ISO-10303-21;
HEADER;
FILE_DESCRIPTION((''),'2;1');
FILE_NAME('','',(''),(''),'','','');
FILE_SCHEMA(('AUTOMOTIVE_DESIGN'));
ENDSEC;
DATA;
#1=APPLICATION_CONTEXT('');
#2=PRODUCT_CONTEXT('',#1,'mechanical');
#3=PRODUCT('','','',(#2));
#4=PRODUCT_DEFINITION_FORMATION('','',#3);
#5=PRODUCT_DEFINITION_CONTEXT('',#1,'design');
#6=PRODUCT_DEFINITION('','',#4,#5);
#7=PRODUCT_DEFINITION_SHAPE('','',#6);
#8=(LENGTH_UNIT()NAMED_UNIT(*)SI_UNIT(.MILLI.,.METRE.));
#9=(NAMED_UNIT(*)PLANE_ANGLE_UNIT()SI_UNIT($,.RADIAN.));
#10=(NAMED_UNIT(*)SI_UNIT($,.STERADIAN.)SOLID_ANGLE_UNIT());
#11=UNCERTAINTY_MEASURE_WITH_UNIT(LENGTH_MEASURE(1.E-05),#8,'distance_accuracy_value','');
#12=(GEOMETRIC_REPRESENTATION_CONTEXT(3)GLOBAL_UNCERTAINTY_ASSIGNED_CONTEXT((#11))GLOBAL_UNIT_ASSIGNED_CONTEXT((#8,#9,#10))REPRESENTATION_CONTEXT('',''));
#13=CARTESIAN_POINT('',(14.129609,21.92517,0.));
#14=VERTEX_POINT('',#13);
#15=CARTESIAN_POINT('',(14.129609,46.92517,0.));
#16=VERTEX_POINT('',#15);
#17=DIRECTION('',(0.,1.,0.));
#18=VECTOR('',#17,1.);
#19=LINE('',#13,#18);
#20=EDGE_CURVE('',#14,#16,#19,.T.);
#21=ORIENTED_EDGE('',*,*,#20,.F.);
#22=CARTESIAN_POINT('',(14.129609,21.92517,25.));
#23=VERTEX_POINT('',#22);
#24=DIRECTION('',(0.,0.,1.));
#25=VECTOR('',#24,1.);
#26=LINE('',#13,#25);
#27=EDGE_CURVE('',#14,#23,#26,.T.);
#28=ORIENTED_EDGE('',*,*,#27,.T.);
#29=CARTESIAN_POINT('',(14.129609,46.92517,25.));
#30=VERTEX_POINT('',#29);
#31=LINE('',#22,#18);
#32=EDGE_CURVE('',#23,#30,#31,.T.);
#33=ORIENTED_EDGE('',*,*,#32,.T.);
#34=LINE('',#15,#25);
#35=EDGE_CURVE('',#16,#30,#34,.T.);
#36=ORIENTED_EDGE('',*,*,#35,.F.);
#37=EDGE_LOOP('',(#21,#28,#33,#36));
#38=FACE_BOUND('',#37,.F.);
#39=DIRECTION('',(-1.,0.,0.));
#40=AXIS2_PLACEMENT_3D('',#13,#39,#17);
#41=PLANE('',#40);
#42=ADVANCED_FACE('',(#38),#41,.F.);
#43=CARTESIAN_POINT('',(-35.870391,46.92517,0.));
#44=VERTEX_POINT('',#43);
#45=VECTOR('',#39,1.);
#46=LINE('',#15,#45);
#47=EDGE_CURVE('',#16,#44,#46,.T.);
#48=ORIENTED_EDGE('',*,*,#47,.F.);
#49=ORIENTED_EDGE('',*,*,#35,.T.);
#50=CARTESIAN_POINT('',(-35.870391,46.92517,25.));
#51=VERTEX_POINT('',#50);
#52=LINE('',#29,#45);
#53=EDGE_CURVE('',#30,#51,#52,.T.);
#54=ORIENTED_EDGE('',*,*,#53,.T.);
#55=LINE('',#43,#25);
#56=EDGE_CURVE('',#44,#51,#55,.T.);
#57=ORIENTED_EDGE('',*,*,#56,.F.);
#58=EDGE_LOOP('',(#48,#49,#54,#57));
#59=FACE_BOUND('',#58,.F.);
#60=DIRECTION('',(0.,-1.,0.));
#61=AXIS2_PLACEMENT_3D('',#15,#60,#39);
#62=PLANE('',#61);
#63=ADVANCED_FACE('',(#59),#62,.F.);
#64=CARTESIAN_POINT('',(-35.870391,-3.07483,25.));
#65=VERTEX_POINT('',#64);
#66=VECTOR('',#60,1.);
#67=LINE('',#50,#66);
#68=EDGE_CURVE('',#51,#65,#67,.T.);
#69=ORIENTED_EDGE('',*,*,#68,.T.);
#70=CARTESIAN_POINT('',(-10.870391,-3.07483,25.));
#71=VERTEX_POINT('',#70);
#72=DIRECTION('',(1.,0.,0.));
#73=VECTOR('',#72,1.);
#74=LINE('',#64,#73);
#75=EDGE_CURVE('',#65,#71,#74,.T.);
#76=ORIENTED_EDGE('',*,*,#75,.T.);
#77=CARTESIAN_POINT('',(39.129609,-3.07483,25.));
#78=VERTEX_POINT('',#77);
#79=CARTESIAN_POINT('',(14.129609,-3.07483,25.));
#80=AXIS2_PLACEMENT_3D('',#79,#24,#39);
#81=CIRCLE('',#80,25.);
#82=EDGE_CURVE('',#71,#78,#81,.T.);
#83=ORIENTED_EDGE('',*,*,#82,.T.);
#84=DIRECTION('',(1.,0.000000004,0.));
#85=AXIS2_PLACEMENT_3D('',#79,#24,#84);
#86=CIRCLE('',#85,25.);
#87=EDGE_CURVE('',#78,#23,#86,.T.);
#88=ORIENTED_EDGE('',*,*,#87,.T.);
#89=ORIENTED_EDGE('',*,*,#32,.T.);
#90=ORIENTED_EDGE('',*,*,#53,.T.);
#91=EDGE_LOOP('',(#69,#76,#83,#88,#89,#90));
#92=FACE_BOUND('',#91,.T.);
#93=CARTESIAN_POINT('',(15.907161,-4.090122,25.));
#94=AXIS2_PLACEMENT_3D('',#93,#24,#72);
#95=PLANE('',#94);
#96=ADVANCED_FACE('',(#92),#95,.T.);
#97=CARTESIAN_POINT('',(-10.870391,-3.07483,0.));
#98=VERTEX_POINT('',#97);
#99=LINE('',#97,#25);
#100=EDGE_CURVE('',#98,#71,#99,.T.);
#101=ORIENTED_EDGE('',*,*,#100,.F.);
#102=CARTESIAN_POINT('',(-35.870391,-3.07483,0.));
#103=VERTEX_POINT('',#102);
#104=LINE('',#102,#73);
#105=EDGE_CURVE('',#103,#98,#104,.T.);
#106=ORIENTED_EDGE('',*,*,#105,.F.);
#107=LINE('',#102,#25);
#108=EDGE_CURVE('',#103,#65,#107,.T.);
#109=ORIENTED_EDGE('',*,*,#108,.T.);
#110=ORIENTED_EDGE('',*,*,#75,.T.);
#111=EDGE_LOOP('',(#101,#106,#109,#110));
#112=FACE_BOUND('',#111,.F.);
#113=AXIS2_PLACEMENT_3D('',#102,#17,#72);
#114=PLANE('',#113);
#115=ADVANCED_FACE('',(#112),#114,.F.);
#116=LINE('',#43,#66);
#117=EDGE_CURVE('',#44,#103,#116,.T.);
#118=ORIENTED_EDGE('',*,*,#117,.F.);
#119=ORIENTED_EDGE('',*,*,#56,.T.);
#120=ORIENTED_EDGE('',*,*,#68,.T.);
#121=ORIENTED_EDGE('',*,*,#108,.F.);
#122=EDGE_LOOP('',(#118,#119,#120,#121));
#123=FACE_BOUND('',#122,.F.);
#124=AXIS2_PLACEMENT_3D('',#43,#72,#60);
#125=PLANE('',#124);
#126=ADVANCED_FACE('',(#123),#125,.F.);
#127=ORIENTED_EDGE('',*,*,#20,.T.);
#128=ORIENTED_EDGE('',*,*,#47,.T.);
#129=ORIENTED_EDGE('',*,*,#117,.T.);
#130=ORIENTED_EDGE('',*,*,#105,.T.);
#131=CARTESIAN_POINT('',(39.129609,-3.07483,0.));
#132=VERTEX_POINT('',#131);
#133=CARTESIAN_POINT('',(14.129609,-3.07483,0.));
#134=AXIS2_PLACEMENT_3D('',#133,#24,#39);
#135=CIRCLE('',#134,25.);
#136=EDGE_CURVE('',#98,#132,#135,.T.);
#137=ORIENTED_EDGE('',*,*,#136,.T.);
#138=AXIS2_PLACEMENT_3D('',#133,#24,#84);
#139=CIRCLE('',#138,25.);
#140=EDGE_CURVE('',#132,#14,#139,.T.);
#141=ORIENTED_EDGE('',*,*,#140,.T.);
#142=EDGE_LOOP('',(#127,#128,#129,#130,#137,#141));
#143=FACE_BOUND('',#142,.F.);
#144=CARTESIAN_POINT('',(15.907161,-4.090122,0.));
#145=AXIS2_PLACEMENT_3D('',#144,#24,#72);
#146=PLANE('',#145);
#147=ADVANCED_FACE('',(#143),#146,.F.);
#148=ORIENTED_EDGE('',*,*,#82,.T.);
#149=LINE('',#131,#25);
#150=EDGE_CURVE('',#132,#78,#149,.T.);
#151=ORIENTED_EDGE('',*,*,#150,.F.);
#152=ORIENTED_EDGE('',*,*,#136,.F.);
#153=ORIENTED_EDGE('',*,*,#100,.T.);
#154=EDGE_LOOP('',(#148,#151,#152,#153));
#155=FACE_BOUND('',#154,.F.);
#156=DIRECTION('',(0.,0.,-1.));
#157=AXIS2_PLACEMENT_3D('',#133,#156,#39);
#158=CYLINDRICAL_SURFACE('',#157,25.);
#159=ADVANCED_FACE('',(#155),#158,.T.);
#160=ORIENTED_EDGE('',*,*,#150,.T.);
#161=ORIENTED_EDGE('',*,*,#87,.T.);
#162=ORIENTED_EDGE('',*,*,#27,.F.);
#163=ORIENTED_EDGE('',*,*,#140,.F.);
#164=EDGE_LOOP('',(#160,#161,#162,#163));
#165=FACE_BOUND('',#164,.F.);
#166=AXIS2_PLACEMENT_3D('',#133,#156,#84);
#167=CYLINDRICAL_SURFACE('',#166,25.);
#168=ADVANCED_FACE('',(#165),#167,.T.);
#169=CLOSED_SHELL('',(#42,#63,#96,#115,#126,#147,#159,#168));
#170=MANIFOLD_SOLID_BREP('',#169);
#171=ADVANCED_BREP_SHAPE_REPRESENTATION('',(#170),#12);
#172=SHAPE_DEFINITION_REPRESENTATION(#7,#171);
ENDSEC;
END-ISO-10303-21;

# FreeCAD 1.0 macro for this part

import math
import FreeCAD as App
import Part
import Sketcher
Q = App.Units.Quantity

doc = App.newDocument("Part")
body = doc.addObject("PartDesign::Body", "Body")

# Sketch on XY plane
sketch1 = doc.addObject("Sketcher::SketchObject", "Sketch")
body.addObject(sketch1)
sketch1.AttachmentSupport = (doc.XY_Plane, [""])
sketch1.MapMode = "FlatFace"
sketch1.addGeometry(Part.ArcOfCircle(Part.Circle(App.Vector(14, -3, 0), App.Vector(0, 0, 1), 25), math.radians(0), math.radians(90)), False)
sketch1.addGeometry(Part.LineSegment(App.Vector(14, 22, 0), App.Vector(14, 47, 0)), False)
sketch1.addGeometry(Part.LineSegment(App.Vector(14, 47, 0), App.Vector(-36, 47, 0)), False)
sketch1.addGeometry(Part.LineSegment(App.Vector(-36, 47, 0), App.Vector(-36, -3, 0)), False)
sketch1.addGeometry(Part.LineSegment(App.Vector(-36, -3, 0), App.Vector(-11, -3, 0)), False)
sketch1.addGeometry(Part.ArcOfCircle(Part.Circle(App.Vector(14, -3, 0), App.Vector(0, 0, 1), 25), math.radians(180), math.radians(360)), False)
sketch1.addConstraint(Sketcher.Constraint("Coincident", 0, 2, 1, 1))
sketch1.addConstraint(Sketcher.Constraint("Coincident", 1, 2, 2, 1))
sketch1.addConstraint(Sketcher.Constraint("Coincident", 2, 2, 3, 1))
sketch1.addConstraint(Sketcher.Constraint("Coincident", 3, 2, 4, 1))
sketch1.addConstraint(Sketcher.Constraint("Coincident", 4, 2, 5, 1))
sketch1.addConstraint(Sketcher.Constraint("Tangent", 5, 2, 0, 1))
sketch1.addConstraint(Sketcher.Constraint("Vertical", 1))
sketch1.addConstraint(Sketcher.Constraint("Horizontal", 2))
sketch1.addConstraint(Sketcher.Constraint("Vertical", 3))
sketch1.addConstraint(Sketcher.Constraint("Horizontal", 4))
sketch1.addConstraint(Sketcher.Constraint("Equal", 0, 5))
sketch1.addConstraint(Sketcher.Constraint("Horizontal", 5, 3, 3, 2))
sketch1.addConstraint(Sketcher.Constraint("Horizontal", 4, 2, 5, 2))
sketch1.addConstraint(Sketcher.Constraint("Vertical", 5, 3, 0, 2))
sketch1.addConstraint(Sketcher.Constraint("Equal", 4, 1))
sketch1.addConstraint(Sketcher.Constraint("Radius", 0, Q("25 mm")))
sketch1.addConstraint(Sketcher.Constraint("DistanceX", 2, 2, 2, 1, Q("50 mm")))
sketch1.addConstraint(Sketcher.Constraint("DistanceX", -1, 1, 0, 3, Q("14.129609 mm")))
sketch1.addConstraint(Sketcher.Constraint("DistanceY", 0, 3, -1, 1, Q("3.07483 mm")))
pad1 = doc.addObject("PartDesign::Pad", "Pad")
body.addObject(pad1)
pad1.Profile = sketch1
pad1.Length = 25

doc.recompute()
